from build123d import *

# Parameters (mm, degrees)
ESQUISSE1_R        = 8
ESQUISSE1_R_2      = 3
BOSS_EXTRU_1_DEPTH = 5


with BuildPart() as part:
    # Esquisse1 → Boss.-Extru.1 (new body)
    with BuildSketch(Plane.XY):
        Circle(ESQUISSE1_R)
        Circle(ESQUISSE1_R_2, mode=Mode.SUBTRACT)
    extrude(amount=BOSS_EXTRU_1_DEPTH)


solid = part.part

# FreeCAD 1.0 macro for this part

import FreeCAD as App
import Part
import Sketcher

V = App.Vector
Q = App.Units.Quantity

doc = App.newDocument("Part")
body = doc.addObject("PartDesign::Body", "Body")

sketch1 = body.newObject("Sketcher::SketchObject", "Sketch")
sketch1.AttachmentSupport = (doc.getObject("XY_Plane"), [""])
sketch1.MapMode = "FlatFace"
sketch1.addGeometry([
    Part.Circle(V(0, 0, 0), V(0, 0, 1), 8),
    Part.Circle(V(0, 0, 0), V(0, 0, 1), 3),
], False)
sketch1.addConstraint([
    Sketcher.Constraint("Coincident", 0, 3, -1, 1),
    Sketcher.Constraint("Coincident", 1, 3, -1, 1),
    Sketcher.Constraint("Diameter", 0, Q("16 mm")),
    Sketcher.Constraint("Diameter", 1, Q("6 mm")),
])
pad1 = body.newObject("PartDesign::Pad", "Pad")
pad1.Profile = sketch1
pad1.Length = 5

doc.recompute()
